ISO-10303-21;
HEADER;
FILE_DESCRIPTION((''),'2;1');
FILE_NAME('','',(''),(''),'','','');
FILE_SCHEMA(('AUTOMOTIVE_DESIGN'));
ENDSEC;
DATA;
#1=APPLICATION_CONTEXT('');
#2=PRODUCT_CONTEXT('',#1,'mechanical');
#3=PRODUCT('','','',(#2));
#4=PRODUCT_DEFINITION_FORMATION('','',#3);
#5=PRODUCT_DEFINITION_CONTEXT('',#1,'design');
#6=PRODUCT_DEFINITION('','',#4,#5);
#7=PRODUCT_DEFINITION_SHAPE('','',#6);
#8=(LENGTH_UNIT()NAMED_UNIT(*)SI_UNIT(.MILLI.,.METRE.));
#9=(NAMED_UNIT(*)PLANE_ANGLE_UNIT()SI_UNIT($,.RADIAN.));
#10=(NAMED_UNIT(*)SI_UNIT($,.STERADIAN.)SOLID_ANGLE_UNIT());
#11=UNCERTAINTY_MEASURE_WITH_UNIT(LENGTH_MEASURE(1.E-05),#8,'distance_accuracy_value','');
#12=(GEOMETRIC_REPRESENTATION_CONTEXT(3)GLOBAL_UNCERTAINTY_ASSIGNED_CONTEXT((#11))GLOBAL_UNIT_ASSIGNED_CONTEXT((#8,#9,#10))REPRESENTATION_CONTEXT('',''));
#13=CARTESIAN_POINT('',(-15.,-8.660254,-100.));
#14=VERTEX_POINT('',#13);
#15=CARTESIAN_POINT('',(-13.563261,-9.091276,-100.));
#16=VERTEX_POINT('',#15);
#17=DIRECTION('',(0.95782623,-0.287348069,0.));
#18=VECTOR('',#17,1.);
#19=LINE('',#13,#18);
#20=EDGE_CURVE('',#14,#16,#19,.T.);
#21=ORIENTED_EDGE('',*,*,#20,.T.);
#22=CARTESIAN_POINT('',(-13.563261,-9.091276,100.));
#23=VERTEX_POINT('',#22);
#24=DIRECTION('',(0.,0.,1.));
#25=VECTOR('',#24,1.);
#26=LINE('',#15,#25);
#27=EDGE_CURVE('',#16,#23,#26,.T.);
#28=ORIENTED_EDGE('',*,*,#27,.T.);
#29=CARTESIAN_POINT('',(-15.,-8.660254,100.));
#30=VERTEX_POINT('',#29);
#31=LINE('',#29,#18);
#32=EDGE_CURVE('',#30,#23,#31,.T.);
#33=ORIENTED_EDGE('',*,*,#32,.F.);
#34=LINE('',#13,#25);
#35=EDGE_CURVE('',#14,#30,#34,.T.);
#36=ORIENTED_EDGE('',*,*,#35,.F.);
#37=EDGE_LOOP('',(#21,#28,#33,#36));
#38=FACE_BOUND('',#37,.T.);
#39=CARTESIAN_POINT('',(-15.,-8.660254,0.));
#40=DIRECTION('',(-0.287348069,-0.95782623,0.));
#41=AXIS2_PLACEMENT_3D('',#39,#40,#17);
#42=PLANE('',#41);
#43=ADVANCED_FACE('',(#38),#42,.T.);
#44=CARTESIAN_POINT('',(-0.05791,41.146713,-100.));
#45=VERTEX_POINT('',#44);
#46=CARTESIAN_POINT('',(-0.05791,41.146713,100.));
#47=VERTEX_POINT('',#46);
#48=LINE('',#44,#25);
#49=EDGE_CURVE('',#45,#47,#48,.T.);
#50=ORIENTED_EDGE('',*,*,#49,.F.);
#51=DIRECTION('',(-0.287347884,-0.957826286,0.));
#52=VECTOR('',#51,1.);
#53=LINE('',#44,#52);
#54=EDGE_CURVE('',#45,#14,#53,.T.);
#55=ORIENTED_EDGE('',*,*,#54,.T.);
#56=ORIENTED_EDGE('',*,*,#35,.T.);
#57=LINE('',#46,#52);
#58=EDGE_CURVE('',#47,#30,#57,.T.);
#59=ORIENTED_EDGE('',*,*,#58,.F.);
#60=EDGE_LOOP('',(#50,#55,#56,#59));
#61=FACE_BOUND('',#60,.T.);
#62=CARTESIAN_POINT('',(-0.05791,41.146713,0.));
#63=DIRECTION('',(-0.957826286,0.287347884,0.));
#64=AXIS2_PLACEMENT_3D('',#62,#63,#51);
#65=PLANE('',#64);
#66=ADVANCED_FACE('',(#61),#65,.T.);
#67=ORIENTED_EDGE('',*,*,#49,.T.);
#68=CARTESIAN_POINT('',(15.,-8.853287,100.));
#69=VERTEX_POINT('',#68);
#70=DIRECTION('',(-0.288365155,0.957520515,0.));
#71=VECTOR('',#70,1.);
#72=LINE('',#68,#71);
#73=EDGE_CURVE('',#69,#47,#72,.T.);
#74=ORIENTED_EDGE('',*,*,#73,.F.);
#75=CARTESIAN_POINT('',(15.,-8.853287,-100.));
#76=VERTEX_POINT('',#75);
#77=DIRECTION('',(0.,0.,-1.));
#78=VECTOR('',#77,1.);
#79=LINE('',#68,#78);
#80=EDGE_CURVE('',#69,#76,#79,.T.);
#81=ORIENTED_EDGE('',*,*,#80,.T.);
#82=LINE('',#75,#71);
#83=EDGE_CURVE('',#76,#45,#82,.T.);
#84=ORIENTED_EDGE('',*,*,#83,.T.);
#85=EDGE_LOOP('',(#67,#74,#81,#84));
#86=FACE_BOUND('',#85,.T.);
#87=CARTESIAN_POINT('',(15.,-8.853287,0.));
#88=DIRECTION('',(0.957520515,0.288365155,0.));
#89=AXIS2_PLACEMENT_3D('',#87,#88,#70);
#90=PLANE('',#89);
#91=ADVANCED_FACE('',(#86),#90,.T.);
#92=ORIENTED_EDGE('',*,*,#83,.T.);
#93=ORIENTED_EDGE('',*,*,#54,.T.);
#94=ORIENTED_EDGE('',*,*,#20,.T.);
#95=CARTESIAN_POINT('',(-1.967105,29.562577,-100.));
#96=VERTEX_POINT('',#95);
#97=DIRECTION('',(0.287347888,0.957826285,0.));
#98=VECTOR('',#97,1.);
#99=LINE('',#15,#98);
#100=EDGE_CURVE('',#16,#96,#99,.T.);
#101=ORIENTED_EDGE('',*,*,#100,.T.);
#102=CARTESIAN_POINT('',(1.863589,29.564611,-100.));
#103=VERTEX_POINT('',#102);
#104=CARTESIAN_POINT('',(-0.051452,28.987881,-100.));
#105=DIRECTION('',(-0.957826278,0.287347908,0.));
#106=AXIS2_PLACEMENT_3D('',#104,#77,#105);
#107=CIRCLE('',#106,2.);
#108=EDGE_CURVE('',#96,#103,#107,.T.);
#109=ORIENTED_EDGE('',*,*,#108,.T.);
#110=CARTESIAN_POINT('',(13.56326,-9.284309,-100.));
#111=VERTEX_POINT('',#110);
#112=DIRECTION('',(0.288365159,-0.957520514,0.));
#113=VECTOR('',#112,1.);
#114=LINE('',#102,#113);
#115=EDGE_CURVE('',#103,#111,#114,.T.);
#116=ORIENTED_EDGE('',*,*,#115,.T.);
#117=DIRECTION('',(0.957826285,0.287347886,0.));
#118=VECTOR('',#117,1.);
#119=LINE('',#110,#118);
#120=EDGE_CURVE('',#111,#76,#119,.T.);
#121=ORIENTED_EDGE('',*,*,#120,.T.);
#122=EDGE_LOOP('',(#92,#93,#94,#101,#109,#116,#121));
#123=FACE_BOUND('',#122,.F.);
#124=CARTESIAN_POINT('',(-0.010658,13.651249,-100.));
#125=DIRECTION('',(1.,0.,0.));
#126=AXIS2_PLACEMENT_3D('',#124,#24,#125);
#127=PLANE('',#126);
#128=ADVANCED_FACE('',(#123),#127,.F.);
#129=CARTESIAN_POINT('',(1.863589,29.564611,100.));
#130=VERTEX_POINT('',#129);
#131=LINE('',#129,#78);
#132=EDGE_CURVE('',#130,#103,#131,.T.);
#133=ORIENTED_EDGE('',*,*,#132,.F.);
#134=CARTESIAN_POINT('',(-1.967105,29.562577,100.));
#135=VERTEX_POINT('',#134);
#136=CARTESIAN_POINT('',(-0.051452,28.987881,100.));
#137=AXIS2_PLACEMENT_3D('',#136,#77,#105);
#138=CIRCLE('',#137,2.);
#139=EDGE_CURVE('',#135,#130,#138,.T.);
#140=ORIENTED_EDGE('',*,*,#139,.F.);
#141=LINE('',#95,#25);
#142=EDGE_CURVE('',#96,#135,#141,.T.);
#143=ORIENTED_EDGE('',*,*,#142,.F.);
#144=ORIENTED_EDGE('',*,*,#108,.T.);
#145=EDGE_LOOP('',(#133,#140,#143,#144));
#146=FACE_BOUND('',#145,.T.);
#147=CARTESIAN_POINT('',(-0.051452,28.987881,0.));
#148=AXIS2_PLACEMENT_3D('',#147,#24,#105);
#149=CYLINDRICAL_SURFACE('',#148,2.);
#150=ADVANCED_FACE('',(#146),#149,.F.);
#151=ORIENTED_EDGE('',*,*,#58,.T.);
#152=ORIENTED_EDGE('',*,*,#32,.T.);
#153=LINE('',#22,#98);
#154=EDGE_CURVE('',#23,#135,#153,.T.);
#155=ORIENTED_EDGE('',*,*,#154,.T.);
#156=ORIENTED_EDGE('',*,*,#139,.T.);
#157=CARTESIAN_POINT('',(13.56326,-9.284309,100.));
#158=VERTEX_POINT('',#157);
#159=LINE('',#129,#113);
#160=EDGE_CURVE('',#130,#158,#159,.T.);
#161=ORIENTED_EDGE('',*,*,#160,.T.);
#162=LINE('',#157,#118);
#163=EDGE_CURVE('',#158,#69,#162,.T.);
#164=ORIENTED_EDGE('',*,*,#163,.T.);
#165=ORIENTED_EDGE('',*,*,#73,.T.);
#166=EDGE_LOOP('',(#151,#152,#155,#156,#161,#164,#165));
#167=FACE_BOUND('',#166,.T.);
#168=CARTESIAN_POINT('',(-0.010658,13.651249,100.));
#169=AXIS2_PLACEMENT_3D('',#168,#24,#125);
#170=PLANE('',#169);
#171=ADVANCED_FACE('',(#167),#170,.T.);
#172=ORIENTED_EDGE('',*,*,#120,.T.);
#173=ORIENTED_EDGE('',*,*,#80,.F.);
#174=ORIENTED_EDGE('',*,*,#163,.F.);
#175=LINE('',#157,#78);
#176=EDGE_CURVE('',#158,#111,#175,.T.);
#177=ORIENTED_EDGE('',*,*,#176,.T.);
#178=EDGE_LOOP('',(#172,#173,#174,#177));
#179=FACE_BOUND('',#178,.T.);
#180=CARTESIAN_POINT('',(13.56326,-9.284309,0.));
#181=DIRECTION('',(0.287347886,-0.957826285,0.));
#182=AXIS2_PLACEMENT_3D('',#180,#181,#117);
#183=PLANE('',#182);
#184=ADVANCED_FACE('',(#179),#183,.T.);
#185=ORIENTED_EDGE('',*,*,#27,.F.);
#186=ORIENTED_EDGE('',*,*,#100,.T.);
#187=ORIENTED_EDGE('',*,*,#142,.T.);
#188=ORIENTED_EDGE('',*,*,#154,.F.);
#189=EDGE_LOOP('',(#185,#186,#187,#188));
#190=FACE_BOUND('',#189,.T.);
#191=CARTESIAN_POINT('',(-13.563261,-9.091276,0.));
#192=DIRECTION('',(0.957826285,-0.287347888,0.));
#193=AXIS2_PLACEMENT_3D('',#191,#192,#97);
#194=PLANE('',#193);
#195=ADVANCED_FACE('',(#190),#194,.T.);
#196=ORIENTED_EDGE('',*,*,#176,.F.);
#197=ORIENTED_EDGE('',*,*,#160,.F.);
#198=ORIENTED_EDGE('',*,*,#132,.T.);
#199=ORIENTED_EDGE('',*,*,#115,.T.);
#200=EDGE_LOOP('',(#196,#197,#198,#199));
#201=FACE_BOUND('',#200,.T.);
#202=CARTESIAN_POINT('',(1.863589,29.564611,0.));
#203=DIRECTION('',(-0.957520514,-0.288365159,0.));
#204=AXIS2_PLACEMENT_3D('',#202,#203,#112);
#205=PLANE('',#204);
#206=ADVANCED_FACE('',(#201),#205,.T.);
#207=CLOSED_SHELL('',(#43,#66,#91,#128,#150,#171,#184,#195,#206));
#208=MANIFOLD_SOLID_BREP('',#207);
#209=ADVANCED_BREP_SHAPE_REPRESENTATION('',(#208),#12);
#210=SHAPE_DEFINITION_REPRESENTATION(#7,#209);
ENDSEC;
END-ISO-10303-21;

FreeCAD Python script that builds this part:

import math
import FreeCAD as App
import Part
import Sketcher
Q = App.Units.Quantity

doc = App.newDocument("Part")
params = doc.addObject("Spreadsheet::Sheet", "Params")
for row, (alias, value) in enumerate([
    ("sketch1_radius", "2 mm"),
    ("sketch1_length", "52 mm"),
    ("sketch1_length2", "1.5 mm"),
    ("sketch1_length3", "1.500001 mm"),
    ("pad1_length", "200 mm"),
], start=1):
    params.set(f"A{row}", alias)
    params.set(f"B{row}", "=" + value)
    params.setAlias(f"B{row}", alias)

body = doc.addObject("PartDesign::Body", "Body")

# Sketch on XY plane
sketch1 = body.newObject("Sketcher::SketchObject", "Sketch")
sketch1.AttachmentSupport = (doc.getObject("XY_Plane"), [""])
sketch1.MapMode = "FlatFace"
sketch1.addGeometry([
    Part.LineSegment(App.Vector(15, -8.853287, 0), App.Vector(-0.05791, 41.146713, 0)),  # 0
    Part.LineSegment(App.Vector(-0.05791, 41.146713, 0), App.Vector(-15, -8.660254, 0)),  # 1
    Part.LineSegment(App.Vector(-15, -8.660254, 0), App.Vector(-13.563261, -9.091276, 0)),  # 2
    Part.LineSegment(App.Vector(-13.563261, -9.091276, 0), App.Vector(-1.967105, 29.562577, 0)),  # 3
    Part.ArcOfCircle(Part.Circle(App.Vector(-0.051452, 28.987881, 0), App.Vector(0, 0, 1), 2), math.radians(16.760091), math.radians(163.300754)),  # 4
    Part.LineSegment(App.Vector(1.863589, 29.564611, 0), App.Vector(13.56326, -9.284309, 0)),  # 5
    Part.LineSegment(App.Vector(13.56326, -9.284309, 0), App.Vector(15, -8.853287, 0)),  # 6
], False)
sketch1.addConstraint([
    Sketcher.Constraint("Coincident", 0, 2, 1, 1),
    Sketcher.Constraint("Coincident", 1, 2, 2, 1),
    Sketcher.Constraint("Coincident", 2, 2, 3, 1),
    Sketcher.Constraint("Coincident", 3, 2, 4, 2),
    Sketcher.Constraint("Coincident", 4, 1, 5, 1),
    Sketcher.Constraint("Coincident", 5, 2, 6, 1),
    Sketcher.Constraint("Coincident", 6, 2, 0, 1),
    Sketcher.Constraint("Radius", 4, Q("2 mm")),
    Sketcher.Constraint("Distance", 1, Q("52 mm")),
    Sketcher.Constraint("DistanceX", 1, 2, -1, 1, Q("15 mm")),
    Sketcher.Constraint("DistanceX", -1, 1, 6, 2, Q("15 mm")),
    Sketcher.Constraint("Distance", 2, Q("1.5 mm")),
    Sketcher.Constraint("Distance", 6, Q("1.500001 mm")),
    Sketcher.Constraint("DistanceX", 0, 2, 4, 1, Q("1.921499 mm")),
    Sketcher.Constraint("DistanceY", 4, 1, 0, 2, Q("11.582102 mm")),
    Sketcher.Constraint("DistanceY", 6, 2, 4, 1, Q("38.417898 mm")),
    Sketcher.Constraint("DistanceY", -1, 1, 4, 3, Q("28.987881 mm")),
    Sketcher.Constraint("DistanceX", 0, 2, -1, 1, Q("0.05791 mm")),
    Sketcher.Constraint("DistanceX", 2, 2, -1, 1, Q("13.563261 mm")),
    Sketcher.Constraint("DistanceY", -1, 1, 4, 1, Q("29.564611 mm")),
    Sketcher.Constraint("DistanceX", -1, 1, 5, 2, Q("13.56326 mm")),
    Sketcher.Constraint("DistanceY", 1, 2, 3, 2, Q("38.222831 mm")),
])
sketch1.setExpression("Constraints[7]", "Params.sketch1_radius")
sketch1.setExpression("Constraints[8]", "Params.sketch1_length")
sketch1.setExpression("Constraints[11]", "Params.sketch1_length2")
sketch1.setExpression("Constraints[12]", "Params.sketch1_length3")
pad1 = body.newObject("PartDesign::Pad", "Pad")
pad1.Profile = sketch1
pad1.setExpression("Length", "Params.pad1_length")
pad1.Midplane = True

doc.recompute()
